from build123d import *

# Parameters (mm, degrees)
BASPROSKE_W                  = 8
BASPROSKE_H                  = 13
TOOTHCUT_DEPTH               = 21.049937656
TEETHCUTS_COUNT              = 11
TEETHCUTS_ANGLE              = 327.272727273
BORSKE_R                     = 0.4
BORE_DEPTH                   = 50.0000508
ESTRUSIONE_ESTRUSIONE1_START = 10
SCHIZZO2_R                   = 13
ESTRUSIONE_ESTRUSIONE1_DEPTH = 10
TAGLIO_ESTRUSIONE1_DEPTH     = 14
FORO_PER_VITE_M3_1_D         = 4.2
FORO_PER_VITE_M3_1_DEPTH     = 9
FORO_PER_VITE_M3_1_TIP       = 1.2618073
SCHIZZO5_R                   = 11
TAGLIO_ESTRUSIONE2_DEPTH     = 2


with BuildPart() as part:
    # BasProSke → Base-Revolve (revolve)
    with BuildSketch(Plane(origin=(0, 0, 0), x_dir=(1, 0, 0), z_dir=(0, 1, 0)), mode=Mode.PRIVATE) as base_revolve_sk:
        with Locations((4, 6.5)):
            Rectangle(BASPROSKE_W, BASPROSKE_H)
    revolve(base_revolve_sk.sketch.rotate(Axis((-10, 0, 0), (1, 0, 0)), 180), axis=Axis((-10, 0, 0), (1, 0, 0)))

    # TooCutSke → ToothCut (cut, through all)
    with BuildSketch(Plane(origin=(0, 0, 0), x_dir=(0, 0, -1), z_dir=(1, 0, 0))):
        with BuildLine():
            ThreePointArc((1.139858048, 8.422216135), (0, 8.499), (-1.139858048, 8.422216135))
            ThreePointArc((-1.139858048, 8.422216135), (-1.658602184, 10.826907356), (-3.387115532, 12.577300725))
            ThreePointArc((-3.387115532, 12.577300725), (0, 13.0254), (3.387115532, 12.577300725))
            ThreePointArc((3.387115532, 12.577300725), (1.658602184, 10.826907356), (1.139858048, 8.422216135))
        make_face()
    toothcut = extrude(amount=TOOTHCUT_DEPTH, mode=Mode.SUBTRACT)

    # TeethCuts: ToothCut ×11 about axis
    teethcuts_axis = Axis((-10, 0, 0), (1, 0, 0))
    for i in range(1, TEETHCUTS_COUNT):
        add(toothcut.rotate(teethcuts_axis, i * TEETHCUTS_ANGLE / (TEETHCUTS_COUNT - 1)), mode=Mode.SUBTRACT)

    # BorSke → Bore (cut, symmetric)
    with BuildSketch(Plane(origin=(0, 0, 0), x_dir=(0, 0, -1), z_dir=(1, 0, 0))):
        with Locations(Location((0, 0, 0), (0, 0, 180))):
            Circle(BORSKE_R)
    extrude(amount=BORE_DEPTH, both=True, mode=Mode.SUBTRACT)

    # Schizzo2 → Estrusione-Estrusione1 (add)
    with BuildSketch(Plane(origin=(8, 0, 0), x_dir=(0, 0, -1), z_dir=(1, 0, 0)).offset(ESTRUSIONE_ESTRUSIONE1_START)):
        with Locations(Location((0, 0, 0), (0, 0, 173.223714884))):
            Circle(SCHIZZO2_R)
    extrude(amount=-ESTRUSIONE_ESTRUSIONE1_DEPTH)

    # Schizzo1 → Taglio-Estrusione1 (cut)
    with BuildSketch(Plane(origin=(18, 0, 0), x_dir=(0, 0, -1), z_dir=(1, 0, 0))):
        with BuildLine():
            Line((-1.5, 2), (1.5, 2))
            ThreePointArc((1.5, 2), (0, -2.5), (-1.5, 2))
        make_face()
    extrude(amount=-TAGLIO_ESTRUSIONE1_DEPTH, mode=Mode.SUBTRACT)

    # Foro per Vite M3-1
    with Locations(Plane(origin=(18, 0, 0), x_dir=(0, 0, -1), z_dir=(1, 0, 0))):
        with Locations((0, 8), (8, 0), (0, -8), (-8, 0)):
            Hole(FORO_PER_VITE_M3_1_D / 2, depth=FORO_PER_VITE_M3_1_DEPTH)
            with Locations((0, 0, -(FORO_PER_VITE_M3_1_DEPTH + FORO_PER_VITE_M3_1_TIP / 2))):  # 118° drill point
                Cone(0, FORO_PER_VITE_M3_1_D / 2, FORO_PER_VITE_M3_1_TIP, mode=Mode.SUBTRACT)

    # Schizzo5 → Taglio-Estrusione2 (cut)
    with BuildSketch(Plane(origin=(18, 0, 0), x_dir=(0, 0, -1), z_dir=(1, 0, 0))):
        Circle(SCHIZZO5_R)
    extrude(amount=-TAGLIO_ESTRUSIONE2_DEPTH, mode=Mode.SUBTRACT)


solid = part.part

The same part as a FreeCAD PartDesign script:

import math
import FreeCAD as App
import Part
import Sketcher
Q = App.Units.Quantity

doc = App.newDocument("Part")
body = doc.addObject("PartDesign::Body", "Body")

sketch1 = body.newObject("Sketcher::SketchObject", "Sketch")
sketch1.AttachmentSupport = (doc.getObject("XZ_Plane"), [""])
sketch1.MapMode = "FlatFace"
sketch1.addGeometry(Part.LineSegment(App.Vector(0, -13, 0), App.Vector(0, 0, 0)), False)
sketch1.addGeometry(Part.LineSegment(App.Vector(0, 0, 0), App.Vector(8, 0, 0)), False)
sketch1.addGeometry(Part.LineSegment(App.Vector(8, 0, 0), App.Vector(8, -13, 0)), False)
sketch1.addGeometry(Part.LineSegment(App.Vector(8, -13, 0), App.Vector(0, -13, 0)), False)
sketch1.addConstraint(Sketcher.Constraint("Coincident", 0, 2, 1, 1))
sketch1.addConstraint(Sketcher.Constraint("Coincident", 1, 2, 2, 1))
sketch1.addConstraint(Sketcher.Constraint("Coincident", 2, 2, 3, 1))
sketch1.addConstraint(Sketcher.Constraint("Coincident", 3, 2, 0, 1))
sketch1.addConstraint(Sketcher.Constraint("Vertical", 0))
sketch1.addConstraint(Sketcher.Constraint("Horizontal", 1))
sketch1.addConstraint(Sketcher.Constraint("Vertical", 2))
sketch1.addConstraint(Sketcher.Constraint("Horizontal", 3))
sketch1.addConstraint(Sketcher.Constraint("Coincident", 0, 2, -1, 1))
sketch1.addConstraint(Sketcher.Constraint("DistanceX", 1, 1, 1, 2, Q("8 mm")))
sketch1.addConstraint(Sketcher.Constraint("DistanceY", 0, 1, 0, 2, Q("13 mm")))
revolution = body.newObject("PartDesign::Revolution", "Revolution")
revolution.Profile = sketch1
revolution.ReferenceAxis = (sketch1, ["H_Axis"])
revolution.Angle = 360

sketch2 = body.newObject("Sketcher::SketchObject", "Sketch001")
sketch2.AttachmentSupport = (doc.getObject("YZ_Plane"), [""])
sketch2.MapMode = "FlatFace"
sketch2.addGeometry(Part.ArcOfCircle(Part.Circle(App.Vector(0, 0, 0), App.Vector(0, 0, 1), 8.5), math.radians(-7.71), math.radians(7.71)), False)
sketch2.addGeometry(Part.ArcOfCircle(Part.Circle(App.Vector(8.7, -5.5, 0), App.Vector(0, 0, 1), 4.4), math.radians(29), math.radians(94)), False)
sketch2.addGeometry(Part.ArcOfCircle(Part.Circle(App.Vector(0, 0, 0), App.Vector(0, 0, 1), 13), math.radians(-15), math.radians(15)), False)
sketch2.addGeometry(Part.ArcOfCircle(Part.Circle(App.Vector(8.7, 5.5, 0), App.Vector(0, 0, 1), 4.4), math.radians(-94), math.radians(-29)), False)
sketch2.addConstraint(Sketcher.Constraint("Coincident", 0, 1, 1, 2))
sketch2.addConstraint(Sketcher.Constraint("Coincident", 1, 1, 2, 1))
sketch2.addConstraint(Sketcher.Constraint("Coincident", 2, 2, 3, 2))
sketch2.addConstraint(Sketcher.Constraint("Coincident", 3, 1, 0, 2))
sketch2.addConstraint(Sketcher.Constraint("Coincident", 0, 3, -1, 1))
sketch2.addConstraint(Sketcher.Constraint("Coincident", 2, 3, -1, 1))
sketch2.addConstraint(Sketcher.Constraint("Equal", 1, 3))
sketch2.addConstraint(Sketcher.Constraint("Symmetric", 1, 3, 3, 3, -1))
sketch2.addConstraint(Sketcher.Constraint("Radius", 1, Q("4.4 mm")))
sketch2.addConstraint(Sketcher.Constraint("Radius", 0, Q("8.499 mm")))
sketch2.addConstraint(Sketcher.Constraint("Radius", 2, Q("13.0254 mm")))
sketch2.addConstraint(Sketcher.Constraint("DistanceX", -1, 1, 1, 1, Q("12.577301 mm")))
sketch2.addConstraint(Sketcher.Constraint("DistanceY", 2, 2, 3, 3, Q("2.141702 mm")))
pocket1 = body.newObject("PartDesign::Pocket", "Pocket")
pocket1.Profile = sketch2
pocket1.Type = "ThroughAll"
pocket1.Reversed = True
doc.recompute()

polarpattern = body.newObject("PartDesign::PolarPattern", "PolarPattern")
polarpattern.Originals = [pocket1]
polarpattern.Axis = (doc.getObject("X_Axis"), [""])
polarpattern.Angle = 360
polarpattern.Occurrences = 11
body.Tip = polarpattern

sketch3 = body.newObject("Sketcher::SketchObject", "Sketch002")
sketch3.AttachmentSupport = (doc.getObject("YZ_Plane"), [""])
sketch3.MapMode = "FlatFace"
sketch3.addGeometry(Part.Circle(App.Vector(0, 0, 0), App.Vector(0, 0, 1), 0.4), False)
sketch3.addConstraint(Sketcher.Constraint("Coincident", 0, 3, -1, 1))
sketch3.addConstraint(Sketcher.Constraint("Diameter", 0, Q("0.8 mm")))
pocket2 = body.newObject("PartDesign::Pocket", "Pocket001")
pocket2.Profile = sketch3
pocket2.Length = 100.000102
pocket2.Midplane = True

sketch4 = body.newObject("Sketcher::SketchObject", "Sketch003")
sketch4.AttachmentSupport = (doc.getObject("YZ_Plane"), [""])
sketch4.MapMode = "FlatFace"
sketch4.AttachmentOffset = App.Placement(App.Vector(0, 0, 18), App.Rotation())
sketch4.addGeometry(Part.Circle(App.Vector(0, 0, 0), App.Vector(0, 0, 1), 13), False)
sketch4.addConstraint(Sketcher.Constraint("Coincident", 0, 3, -1, 1))
sketch4.addConstraint(Sketcher.Constraint("Diameter", 0, Q("26 mm")))
pad1 = body.newObject("PartDesign::Pad", "Pad")
pad1.Profile = sketch4
pad1.Length = 10
pad1.Reversed = True

sketch5 = body.newObject("Sketcher::SketchObject", "Sketch004")
sketch5.AttachmentSupport = (doc.getObject("YZ_Plane"), [""])
sketch5.MapMode = "FlatFace"
sketch5.AttachmentOffset = App.Placement(App.Vector(0, 0, 18), App.Rotation())
sketch5.addGeometry(Part.LineSegment(App.Vector(2, -1.5, 0), App.Vector(2, 1.5, 0)), False)
sketch5.addGeometry(Part.ArcOfCircle(Part.Circle(App.Vector(0, 0, 0), App.Vector(0, 0, 1), 2.5), math.radians(37), math.radians(323)), False)
sketch5.addConstraint(Sketcher.Constraint("Coincident", 0, 1, 1, 2))
sketch5.addConstraint(Sketcher.Constraint("Coincident", 1, 1, 0, 2))
sketch5.addConstraint(Sketcher.Constraint("Vertical", 0))
sketch5.addConstraint(Sketcher.Constraint("Coincident", 1, 3, -1, 1))
sketch5.addConstraint(Sketcher.Constraint("Radius", 1, Q("2.5 mm")))
sketch5.addConstraint(Sketcher.Constraint("DistanceY", 0, 1, 0, 2, Q("3 mm")))
pocket3 = body.newObject("PartDesign::Pocket", "Pocket002")
pocket3.Profile = sketch5
pocket3.Length = 14

sketch6 = body.newObject("Sketcher::SketchObject", "Sketch005")
sketch6.AttachmentSupport = (doc.getObject("YZ_Plane"), [""])
sketch6.MapMode = "FlatFace"
sketch6.AttachmentOffset = App.Placement(App.Vector(0, 0, 18), App.Rotation())
sketch6.addGeometry(Part.Circle(App.Vector(8, 0, 0), App.Vector(0, 0, 1), 2.1), False)
sketch6.addGeometry(Part.Circle(App.Vector(0, -8, 0), App.Vector(0, 0, 1), 2.1), False)
sketch6.addGeometry(Part.Circle(App.Vector(-8, 0, 0), App.Vector(0, 0, 1), 2.1), False)
sketch6.addGeometry(Part.Circle(App.Vector(0, 8, 0), App.Vector(0, 0, 1), 2.1), False)
sketch6.addConstraint(Sketcher.Constraint("Equal", 0, 1))
sketch6.addConstraint(Sketcher.Constraint("Equal", 1, 2))
sketch6.addConstraint(Sketcher.Constraint("Equal", 2, 3))
sketch6.addConstraint(Sketcher.Constraint("Symmetric", 0, 3, 2, 3, -1, 1))
sketch6.addConstraint(Sketcher.Constraint("Symmetric", 1, 3, 3, 3, -1, 1))
sketch6.addConstraint(Sketcher.Constraint("PointOnObject", 0, 3, -1))
sketch6.addConstraint(Sketcher.Constraint("PointOnObject", 1, 3, -2))
sketch6.addConstraint(Sketcher.Constraint("Diameter", 0, Q("4.2 mm")))
sketch6.addConstraint(Sketcher.Constraint("DistanceX", -1, 1, 0, 3, Q("8 mm")))
sketch6.addConstraint(Sketcher.Constraint("DistanceY", 1, 3, -1, 1, Q("8 mm")))
doc.recompute()
hole = body.newObject("PartDesign::Hole", "Hole")
hole.Profile = sketch6
hole.ThreadType = "None"
hole.Diameter = 4.2
hole.DepthType = "Dimension"
hole.Depth = 9
hole.DrillPoint = "Angled"
hole.DrillPointAngle = 118

sketch7 = body.newObject("Sketcher::SketchObject", "Sketch006")
sketch7.AttachmentSupport = (doc.getObject("YZ_Plane"), [""])
sketch7.MapMode = "FlatFace"
sketch7.AttachmentOffset = App.Placement(App.Vector(0, 0, 18), App.Rotation())
sketch7.addGeometry(Part.Circle(App.Vector(0, 0, 0), App.Vector(0, 0, 1), 11), False)
sketch7.addConstraint(Sketcher.Constraint("Coincident", 0, 3, -1, 1))
sketch7.addConstraint(Sketcher.Constraint("Diameter", 0, Q("22 mm")))
pocket4 = body.newObject("PartDesign::Pocket", "Pocket003")
pocket4.Profile = sketch7
pocket4.Length = 2

doc.recompute()
